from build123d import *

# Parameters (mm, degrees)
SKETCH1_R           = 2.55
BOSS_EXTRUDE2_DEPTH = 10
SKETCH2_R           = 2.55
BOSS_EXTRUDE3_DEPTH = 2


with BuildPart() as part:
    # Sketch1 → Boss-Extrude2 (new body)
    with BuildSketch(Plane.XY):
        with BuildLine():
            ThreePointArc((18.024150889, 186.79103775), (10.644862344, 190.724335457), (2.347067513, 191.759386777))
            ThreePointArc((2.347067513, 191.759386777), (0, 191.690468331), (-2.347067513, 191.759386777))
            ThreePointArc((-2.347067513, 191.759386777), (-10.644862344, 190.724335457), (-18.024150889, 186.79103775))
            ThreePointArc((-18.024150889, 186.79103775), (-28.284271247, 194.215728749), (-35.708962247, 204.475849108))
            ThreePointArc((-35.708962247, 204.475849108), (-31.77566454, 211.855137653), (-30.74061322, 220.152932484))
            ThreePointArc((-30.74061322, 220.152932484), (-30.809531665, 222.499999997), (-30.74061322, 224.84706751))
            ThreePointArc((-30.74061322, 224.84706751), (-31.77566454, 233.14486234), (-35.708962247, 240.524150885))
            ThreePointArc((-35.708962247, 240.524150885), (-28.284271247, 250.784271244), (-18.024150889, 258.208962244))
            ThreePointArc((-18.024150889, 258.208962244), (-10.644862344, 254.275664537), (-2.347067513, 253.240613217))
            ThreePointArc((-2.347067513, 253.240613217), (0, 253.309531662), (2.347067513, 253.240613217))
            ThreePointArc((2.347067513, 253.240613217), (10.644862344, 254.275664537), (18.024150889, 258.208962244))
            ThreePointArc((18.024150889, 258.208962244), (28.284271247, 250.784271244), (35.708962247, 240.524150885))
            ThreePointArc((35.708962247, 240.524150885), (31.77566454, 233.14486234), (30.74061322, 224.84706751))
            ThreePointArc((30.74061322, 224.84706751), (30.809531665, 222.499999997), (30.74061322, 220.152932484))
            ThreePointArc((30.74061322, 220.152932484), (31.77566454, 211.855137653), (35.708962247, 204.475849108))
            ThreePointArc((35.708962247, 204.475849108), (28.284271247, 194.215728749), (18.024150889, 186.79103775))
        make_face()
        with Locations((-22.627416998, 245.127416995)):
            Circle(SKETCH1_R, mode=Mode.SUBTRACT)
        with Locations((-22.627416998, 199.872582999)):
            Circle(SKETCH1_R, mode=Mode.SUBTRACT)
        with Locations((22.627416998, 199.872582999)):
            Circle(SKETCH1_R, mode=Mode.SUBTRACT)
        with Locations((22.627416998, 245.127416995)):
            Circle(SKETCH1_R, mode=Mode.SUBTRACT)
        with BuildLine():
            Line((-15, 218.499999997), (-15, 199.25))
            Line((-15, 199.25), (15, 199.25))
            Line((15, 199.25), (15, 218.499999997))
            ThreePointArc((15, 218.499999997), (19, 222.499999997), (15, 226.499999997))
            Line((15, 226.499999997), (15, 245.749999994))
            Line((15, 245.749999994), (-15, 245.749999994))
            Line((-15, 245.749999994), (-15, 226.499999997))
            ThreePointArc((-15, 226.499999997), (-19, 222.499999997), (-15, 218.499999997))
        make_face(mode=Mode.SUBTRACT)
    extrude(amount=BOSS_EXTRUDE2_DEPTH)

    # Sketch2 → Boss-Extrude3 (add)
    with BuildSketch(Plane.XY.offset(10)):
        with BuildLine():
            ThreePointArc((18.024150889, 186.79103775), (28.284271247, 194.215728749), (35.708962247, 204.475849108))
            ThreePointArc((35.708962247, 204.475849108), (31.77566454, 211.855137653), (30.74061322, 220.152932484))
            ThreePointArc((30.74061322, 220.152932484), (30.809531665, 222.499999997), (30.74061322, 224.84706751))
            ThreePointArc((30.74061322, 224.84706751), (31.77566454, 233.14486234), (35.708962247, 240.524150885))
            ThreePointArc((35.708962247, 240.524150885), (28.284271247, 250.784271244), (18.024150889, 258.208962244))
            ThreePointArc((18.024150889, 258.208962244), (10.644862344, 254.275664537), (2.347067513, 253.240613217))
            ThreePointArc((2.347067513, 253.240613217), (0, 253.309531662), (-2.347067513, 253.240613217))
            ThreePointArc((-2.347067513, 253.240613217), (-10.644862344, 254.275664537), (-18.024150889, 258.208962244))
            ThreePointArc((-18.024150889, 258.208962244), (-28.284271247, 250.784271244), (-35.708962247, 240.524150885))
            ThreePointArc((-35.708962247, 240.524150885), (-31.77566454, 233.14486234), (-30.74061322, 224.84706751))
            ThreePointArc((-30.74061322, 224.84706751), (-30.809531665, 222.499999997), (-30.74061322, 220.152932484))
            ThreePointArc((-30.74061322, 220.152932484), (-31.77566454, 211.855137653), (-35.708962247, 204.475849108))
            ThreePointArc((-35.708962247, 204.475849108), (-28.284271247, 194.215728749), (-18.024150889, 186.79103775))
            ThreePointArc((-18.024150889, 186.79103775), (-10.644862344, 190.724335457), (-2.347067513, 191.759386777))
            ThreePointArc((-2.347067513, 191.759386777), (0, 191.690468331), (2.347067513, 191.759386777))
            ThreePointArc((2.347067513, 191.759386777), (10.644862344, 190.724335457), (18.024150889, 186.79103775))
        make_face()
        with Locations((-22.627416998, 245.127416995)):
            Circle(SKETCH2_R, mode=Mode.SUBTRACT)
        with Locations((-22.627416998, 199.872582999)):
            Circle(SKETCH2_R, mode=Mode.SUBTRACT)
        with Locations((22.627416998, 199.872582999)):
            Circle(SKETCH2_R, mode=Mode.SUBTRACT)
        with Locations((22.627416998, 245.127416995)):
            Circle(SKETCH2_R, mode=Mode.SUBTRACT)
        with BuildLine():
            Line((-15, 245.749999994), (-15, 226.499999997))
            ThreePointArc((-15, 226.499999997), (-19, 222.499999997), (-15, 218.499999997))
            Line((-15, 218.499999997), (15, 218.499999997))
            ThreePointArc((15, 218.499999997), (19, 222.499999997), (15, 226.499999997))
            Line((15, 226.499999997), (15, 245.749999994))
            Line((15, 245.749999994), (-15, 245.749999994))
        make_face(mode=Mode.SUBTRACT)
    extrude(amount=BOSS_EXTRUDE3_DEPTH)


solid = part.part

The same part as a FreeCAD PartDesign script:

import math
import FreeCAD as App
import Part
import Sketcher

V = App.Vector

doc = App.newDocument("Part")
body = doc.addObject("PartDesign::Body", "Body")

# Sketch on XY plane
sketch1 = doc.addObject("Sketcher::SketchObject", "Sketch")
body.addObject(sketch1)
sketch1.AttachmentSupport = (doc.XY_Plane, [""])
sketch1.MapMode = "FlatFace"
sketch1.addGeometry(Part.ArcOfCircle(Part.Circle(V(3.696585, 168.799804, 0), V(0, 0, 1), 22.999209), math.radians(51.467456), math.radians(93.363859)), False)
sketch1.addGeometry(Part.ArcOfCircle(Part.Circle(V(0, 222.5, 0), V(0, 0, 1), 40), math.radians(-63.217572), math.radians(-26.782428)), False)
sketch1.addGeometry(Part.ArcOfCircle(Part.Circle(V(53.700196, 218.803415, 0), V(0, 0, 1), 22.999209), math.radians(176.636141), math.radians(218.532544)), False)
sketch1.addGeometry(Part.ArcOfCircle(Part.Circle(V(-9.190469, 222.5, 0), V(0, 0, 1), 40), math.radians(-3.363859), math.radians(3.363859)), False)
sketch1.addGeometry(Part.ArcOfCircle(Part.Circle(V(53.700196, 226.196585, 0), V(0, 0, 1), 22.999209), math.radians(141.467456), math.radians(183.363859)), False)
sketch1.addGeometry(Part.ArcOfCircle(Part.Circle(V(0, 222.5, 0), V(0, 0, 1), 40), math.radians(26.782428), math.radians(63.217572)), False)
sketch1.addGeometry(Part.ArcOfCircle(Part.Circle(V(3.696585, 276.200196, 0), V(0, 0, 1), 22.999209), math.radians(-93.363859), math.radians(-51.467456)), False)
sketch1.addGeometry(Part.ArcOfCircle(Part.Circle(V(0, 213.309531, 0), V(0, 0, 1), 40), math.radians(86.636141), math.radians(93.363859)), False)
sketch1.addGeometry(Part.ArcOfCircle(Part.Circle(V(-3.696585, 276.200196, 0), V(0, 0, 1), 22.999209), math.radians(-128.532544), math.radians(-86.636141)), False)
sketch1.addGeometry(Part.ArcOfCircle(Part.Circle(V(0, 222.5, 0), V(0, 0, 1), 40), math.radians(116.782428), math.radians(153.217572)), False)
sketch1.addGeometry(Part.ArcOfCircle(Part.Circle(V(-53.700196, 226.196585, 0), V(0, 0, 1), 22.999209), math.radians(-3.363859), math.radians(38.532544)), False)
sketch1.addGeometry(Part.ArcOfCircle(Part.Circle(V(9.190469, 222.5, 0), V(0, 0, 1), 40), math.radians(176.636141), math.radians(183.363859)), False)
sketch1.addGeometry(Part.ArcOfCircle(Part.Circle(V(-53.700196, 218.803415, 0), V(0, 0, 1), 22.999209), math.radians(-38.532544), math.radians(3.363859)), False)
sketch1.addGeometry(Part.ArcOfCircle(Part.Circle(V(0, 222.5, 0), V(0, 0, 1), 40), math.radians(-153.217572), math.radians(-116.782428)), False)
sketch1.addGeometry(Part.ArcOfCircle(Part.Circle(V(-3.696585, 168.799804, 0), V(0, 0, 1), 22.999209), math.radians(86.636141), math.radians(128.532544)), False)
sketch1.addGeometry(Part.ArcOfCircle(Part.Circle(V(0, 231.690468, 0), V(0, 0, 1), 40), math.radians(-93.363859), math.radians(-86.636141)), False)
sketch1.addGeometry(Part.Circle(V(22.627417, 199.872583, 0), V(0, 0, 1), 2.55), False)
sketch1.addGeometry(Part.Circle(V(-22.627417, 199.872583, 0), V(0, 0, 1), 2.55), False)
sketch1.addGeometry(Part.Circle(V(22.627417, 245.127417, 0), V(0, 0, 1), 2.55), False)
sketch1.addGeometry(Part.ArcOfCircle(Part.Circle(V(-15, 222.5, 0), V(0, 0, 1), 4), math.radians(90), math.radians(270)), False)
sketch1.addGeometry(Part.LineSegment(V(-15, 226.5, 0), V(-15, 245.75, 0)), False)
sketch1.addGeometry(Part.LineSegment(V(-15, 245.75, 0), V(15, 245.75, 0)), False)
sketch1.addGeometry(Part.LineSegment(V(15, 245.75, 0), V(15, 226.5, 0)), False)
sketch1.addGeometry(Part.ArcOfCircle(Part.Circle(V(15, 222.5, 0), V(0, 0, 1), 4), math.radians(-90), math.radians(90)), False)
sketch1.addGeometry(Part.LineSegment(V(15, 218.5, 0), V(15, 199.25, 0)), False)
sketch1.addGeometry(Part.LineSegment(V(15, 199.25, 0), V(-15, 199.25, 0)), False)
sketch1.addGeometry(Part.LineSegment(V(-15, 199.25, 0), V(-15, 218.5, 0)), False)
sketch1.addGeometry(Part.Circle(V(-22.627417, 245.127417, 0), V(0, 0, 1), 2.55), False)
sketch1.addConstraint(Sketcher.Constraint("Coincident", 0, 1, 1, 1))
sketch1.addConstraint(Sketcher.Constraint("Coincident", 1, 2, 2, 2))
sketch1.addConstraint(Sketcher.Constraint("Tangent", 2, 1, 3, 1))
sketch1.addConstraint(Sketcher.Constraint("Tangent", 3, 2, 4, 2))
sketch1.addConstraint(Sketcher.Constraint("Coincident", 4, 1, 5, 1))
sketch1.addConstraint(Sketcher.Constraint("Coincident", 5, 2, 6, 2))
sketch1.addConstraint(Sketcher.Constraint("Tangent", 6, 1, 7, 1))
sketch1.addConstraint(Sketcher.Constraint("Tangent", 7, 2, 8, 2))
sketch1.addConstraint(Sketcher.Constraint("Coincident", 8, 1, 9, 1))
sketch1.addConstraint(Sketcher.Constraint("Coincident", 9, 2, 10, 2))
sketch1.addConstraint(Sketcher.Constraint("Tangent", 10, 1, 11, 1))
sketch1.addConstraint(Sketcher.Constraint("Tangent", 11, 2, 12, 2))
sketch1.addConstraint(Sketcher.Constraint("Coincident", 12, 1, 13, 1))
sketch1.addConstraint(Sketcher.Constraint("Coincident", 13, 2, 14, 2))
sketch1.addConstraint(Sketcher.Constraint("Tangent", 14, 1, 15, 1))
sketch1.addConstraint(Sketcher.Constraint("Tangent", 15, 2, 0, 2))
sketch1.addConstraint(Sketcher.Constraint("Coincident", 19, 1, 20, 1))
sketch1.addConstraint(Sketcher.Constraint("Coincident", 20, 2, 21, 1))
sketch1.addConstraint(Sketcher.Constraint("Coincident", 21, 2, 22, 1))
sketch1.addConstraint(Sketcher.Constraint("Coincident", 22, 2, 23, 2))
sketch1.addConstraint(Sketcher.Constraint("Coincident", 23, 1, 24, 1))
sketch1.addConstraint(Sketcher.Constraint("Coincident", 24, 2, 25, 1))
sketch1.addConstraint(Sketcher.Constraint("Coincident", 25, 2, 26, 1))
sketch1.addConstraint(Sketcher.Constraint("Coincident", 26, 2, 19, 2))
sketch1.addConstraint(Sketcher.Constraint("Vertical", 20))
sketch1.addConstraint(Sketcher.Constraint("Horizontal", 21))
sketch1.addConstraint(Sketcher.Constraint("Vertical", 22))
sketch1.addConstraint(Sketcher.Constraint("Vertical", 24))
sketch1.addConstraint(Sketcher.Constraint("Horizontal", 25))
sketch1.addConstraint(Sketcher.Constraint("Vertical", 26))
sketch1.addConstraint(Sketcher.Constraint("Coincident", 5, 3, 1, 3))
sketch1.addConstraint(Sketcher.Constraint("Coincident", 9, 3, 1, 3))
sketch1.addConstraint(Sketcher.Constraint("Coincident", 13, 3, 1, 3))
sketch1.addConstraint(Sketcher.Constraint("Equal", 0, 2))
sketch1.addConstraint(Sketcher.Constraint("Equal", 1, 3))
sketch1.addConstraint(Sketcher.Constraint("Equal", 2, 4))
sketch1.addConstraint(Sketcher.Constraint("Equal", 3, 5))
sketch1.addConstraint(Sketcher.Constraint("Equal", 4, 6))
sketch1.addConstraint(Sketcher.Constraint("Equal", 5, 7))
sketch1.addConstraint(Sketcher.Constraint("Equal", 6, 8))
sketch1.addConstraint(Sketcher.Constraint("Equal", 7, 9))
sketch1.addConstraint(Sketcher.Constraint("Equal", 8, 10))
sketch1.addConstraint(Sketcher.Constraint("Equal", 9, 11))
sketch1.addConstraint(Sketcher.Constraint("Equal", 10, 12))
sketch1.addConstraint(Sketcher.Constraint("Equal", 11, 13))
sketch1.addConstraint(Sketcher.Constraint("Equal", 12, 14))
sketch1.addConstraint(Sketcher.Constraint("Equal", 13, 15))
sketch1.addConstraint(Sketcher.Constraint("Equal", 16, 17))
sketch1.addConstraint(Sketcher.Constraint("Equal", 17, 18))
sketch1.addConstraint(Sketcher.Constraint("Equal", 19, 23))
sketch1.addConstraint(Sketcher.Constraint("Equal", 18, 27))
sketch1.addConstraint(Sketcher.Constraint("Symmetric", 6, 3, 8, 3, -2))
sketch1.addConstraint(Sketcher.Constraint("Symmetric", 4, 3, 10, 3, -2))
sketch1.addConstraint(Sketcher.Constraint("Symmetric", 2, 3, 12, 3, -2))
sketch1.addConstraint(Sketcher.Constraint("Symmetric", 0, 3, 14, 3, -2))
sketch1.addConstraint(Sketcher.Constraint("Symmetric", 16, 3, 17, 3, -2))
sketch1.addConstraint(Sketcher.Constraint("Symmetric", 19, 3, 23, 3, -2))
sketch1.addConstraint(Sketcher.Constraint("Symmetric", 18, 3, 27, 3, -2))
sketch1.addConstraint(Sketcher.Constraint("PointOnObject", 1, 3, -2))
sketch1.addConstraint(Sketcher.Constraint("Horizontal", 1, 3, 3, 3))
sketch1.addConstraint(Sketcher.Constraint("Horizontal", 13, 3, 19, 3))
sketch1.addConstraint(Sketcher.Constraint("Vertical", 2, 3, 4, 3))
sketch1.addConstraint(Sketcher.Constraint("Vertical", 0, 3, 6, 3))
sketch1.addConstraint(Sketcher.Constraint("Vertical", 16, 3, 18, 3))
sketch1.addConstraint(Sketcher.Constraint("Vertical", 0, 1, 5, 2))
sketch1.addConstraint(Sketcher.Constraint("Vertical", 23, 3, 21, 2))
sketch1.addConstraint(Sketcher.Constraint("Vertical", 22, 2, 23, 1))
sketch1.addConstraint(Sketcher.Constraint("Vertical", 20, 2, 25, 2))
sketch1.addConstraint(Sketcher.Constraint("Equal", 22, 24))
sketch1.addConstraint(Sketcher.Constraint("Radius", 1, 40.0))
sketch1.addConstraint(Sketcher.Constraint("Radius", 19, 4.0))
sketch1.addConstraint(Sketcher.Constraint("Diameter", 16, 5.1))
sketch1.addConstraint(Sketcher.Constraint("DistanceX", 21, 1, 21, 2, 30.0))
sketch1.addConstraint(Sketcher.Constraint("DistanceX", 19, 3, -1, 1, 15.0))
sketch1.addConstraint(Sketcher.Constraint("DistanceY", 20, 1, 20, 2, 19.25))
sketch1.addConstraint(Sketcher.Constraint("DistanceY", -1, 1, 1, 3, 222.5))
sketch1.addConstraint(Sketcher.Constraint("Radius", 0, 22.999209))
sketch1.addConstraint(Sketcher.Constraint("DistanceX", 3, 3, -1, 1, 9.190469))
sketch1.addConstraint(Sketcher.Constraint("DistanceY", -1, 1, 7, 3, 213.309531))
sketch1.addConstraint(Sketcher.Constraint("DistanceX", -1, 1, 0, 1, 18.024151))
sketch1.addConstraint(Sketcher.Constraint("DistanceY", -1, 1, 1, 2, 204.475849))
sketch1.addConstraint(Sketcher.Constraint("DistanceX", 11, 3, 16, 3, 13.436948))
sketch1.addConstraint(Sketcher.Constraint("DistanceY", 16, 3, 7, 3, 13.436948))
sketch1.addConstraint(Sketcher.Constraint("DistanceY", 15, 3, 18, 3, 13.436949))
pad1 = doc.addObject("PartDesign::Pad", "Pad")
body.addObject(pad1)
pad1.Profile = sketch1
pad1.Length = 10

# Sketch on XY plane
sketch2 = doc.addObject("Sketcher::SketchObject", "Sketch001")
body.addObject(sketch2)
sketch2.AttachmentSupport = (doc.XY_Plane, [""])
sketch2.MapMode = "FlatFace"
sketch2.AttachmentOffset = App.Placement(V(0, 0, 10), App.Rotation())
sketch2.addGeometry(Part.ArcOfCircle(Part.Circle(V(0, 222.5, 0), V(0, 0, 1), 40), math.radians(-63.217572), math.radians(-26.782428)), False)
sketch2.addGeometry(Part.ArcOfCircle(Part.Circle(V(53.700196, 218.803415, 0), V(0, 0, 1), 22.999209), math.radians(176.636141), math.radians(218.532544)), False)
sketch2.addGeometry(Part.ArcOfCircle(Part.Circle(V(-9.190469, 222.5, 0), V(0, 0, 1), 40), math.radians(-3.363859), math.radians(3.363859)), False)
sketch2.addGeometry(Part.ArcOfCircle(Part.Circle(V(53.700196, 226.196585, 0), V(0, 0, 1), 22.999209), math.radians(141.467456), math.radians(183.363859)), False)
sketch2.addGeometry(Part.ArcOfCircle(Part.Circle(V(0, 222.5, 0), V(0, 0, 1), 40), math.radians(26.782428), math.radians(63.217572)), False)
sketch2.addGeometry(Part.ArcOfCircle(Part.Circle(V(3.696585, 276.200196, 0), V(0, 0, 1), 22.999209), math.radians(-93.363859), math.radians(-51.467456)), False)
sketch2.addGeometry(Part.ArcOfCircle(Part.Circle(V(0, 213.309531, 0), V(0, 0, 1), 40), math.radians(86.636141), math.radians(93.363859)), False)
sketch2.addGeometry(Part.ArcOfCircle(Part.Circle(V(-3.696585, 276.200196, 0), V(0, 0, 1), 22.999209), math.radians(-128.532544), math.radians(-86.636141)), False)
sketch2.addGeometry(Part.ArcOfCircle(Part.Circle(V(0, 222.5, 0), V(0, 0, 1), 40), math.radians(116.782428), math.radians(153.217572)), False)
sketch2.addGeometry(Part.ArcOfCircle(Part.Circle(V(-53.700196, 226.196585, 0), V(0, 0, 1), 22.999209), math.radians(-3.363859), math.radians(38.532544)), False)
sketch2.addGeometry(Part.ArcOfCircle(Part.Circle(V(9.190469, 222.5, 0), V(0, 0, 1), 40), math.radians(176.636141), math.radians(183.363859)), False)
sketch2.addGeometry(Part.ArcOfCircle(Part.Circle(V(-53.700196, 218.803415, 0), V(0, 0, 1), 22.999209), math.radians(-38.532544), math.radians(3.363859)), False)
sketch2.addGeometry(Part.ArcOfCircle(Part.Circle(V(0, 222.5, 0), V(0, 0, 1), 40), math.radians(-153.217572), math.radians(-116.782428)), False)
sketch2.addGeometry(Part.ArcOfCircle(Part.Circle(V(-3.696585, 168.799804, 0), V(0, 0, 1), 22.999209), math.radians(86.636141), math.radians(128.532544)), False)
sketch2.addGeometry(Part.ArcOfCircle(Part.Circle(V(0, 231.690468, 0), V(0, 0, 1), 40), math.radians(-93.363859), math.radians(-86.636141)), False)
sketch2.addGeometry(Part.ArcOfCircle(Part.Circle(V(3.696585, 168.799804, 0), V(0, 0, 1), 22.999209), math.radians(51.467456), math.radians(93.363859)), False)
sketch2.addGeometry(Part.Circle(V(-22.627417, 199.872583, 0), V(0, 0, 1), 2.55), False)
sketch2.addGeometry(Part.Circle(V(22.627417, 199.872583, 0), V(0, 0, 1), 2.55), False)
sketch2.addGeometry(Part.Circle(V(-22.627417, 245.127417, 0), V(0, 0, 1), 2.55), False)
sketch2.addGeometry(Part.LineSegment(V(-15, 226.5, 0), V(-15, 245.75, 0)), False)
sketch2.addGeometry(Part.LineSegment(V(-15, 245.75, 0), V(15, 245.75, 0)), False)
sketch2.addGeometry(Part.LineSegment(V(15, 245.75, 0), V(15, 226.5, 0)), False)
sketch2.addGeometry(Part.ArcOfCircle(Part.Circle(V(15, 222.5, 0), V(0, 0, 1), 4), math.radians(-90), math.radians(90)), False)
sketch2.addGeometry(Part.LineSegment(V(15, 218.5, 0), V(-15, 218.5, 0)), False)
sketch2.addGeometry(Part.ArcOfCircle(Part.Circle(V(-15, 222.5, 0), V(0, 0, 1), 4), math.radians(90), math.radians(270)), False)
sketch2.addGeometry(Part.Circle(V(22.627417, 245.127417, 0), V(0, 0, 1), 2.55), False)
sketch2.addConstraint(Sketcher.Constraint("Coincident", 0, 2, 1, 2))
sketch2.addConstraint(Sketcher.Constraint("Tangent", 1, 1, 2, 1))
sketch2.addConstraint(Sketcher.Constraint("Tangent", 2, 2, 3, 2))
sketch2.addConstraint(Sketcher.Constraint("Coincident", 3, 1, 4, 1))
sketch2.addConstraint(Sketcher.Constraint("Coincident", 4, 2, 5, 2))
sketch2.addConstraint(Sketcher.Constraint("Tangent", 5, 1, 6, 1))
sketch2.addConstraint(Sketcher.Constraint("Tangent", 6, 2, 7, 2))
sketch2.addConstraint(Sketcher.Constraint("Coincident", 7, 1, 8, 1))
sketch2.addConstraint(Sketcher.Constraint("Coincident", 8, 2, 9, 2))
sketch2.addConstraint(Sketcher.Constraint("Tangent", 9, 1, 10, 1))
sketch2.addConstraint(Sketcher.Constraint("Tangent", 10, 2, 11, 2))
sketch2.addConstraint(Sketcher.Constraint("Coincident", 11, 1, 12, 1))
sketch2.addConstraint(Sketcher.Constraint("Coincident", 12, 2, 13, 2))
sketch2.addConstraint(Sketcher.Constraint("Tangent", 13, 1, 14, 1))
sketch2.addConstraint(Sketcher.Constraint("Tangent", 14, 2, 15, 2))
sketch2.addConstraint(Sketcher.Constraint("Coincident", 15, 1, 0, 1))
sketch2.addConstraint(Sketcher.Constraint("Coincident", 19, 2, 20, 1))
sketch2.addConstraint(Sketcher.Constraint("Coincident", 20, 2, 21, 1))
sketch2.addConstraint(Sketcher.Constraint("Coincident", 21, 2, 22, 2))
sketch2.addConstraint(Sketcher.Constraint("Tangent", 22, 1, 23, 1))
sketch2.addConstraint(Sketcher.Constraint("Tangent", 23, 2, 24, 2))
sketch2.addConstraint(Sketcher.Constraint("Coincident", 24, 1, 19, 1))
sketch2.addConstraint(Sketcher.Constraint("Vertical", 19))
sketch2.addConstraint(Sketcher.Constraint("Horizontal", 20))
sketch2.addConstraint(Sketcher.Constraint("Vertical", 21))
sketch2.addConstraint(Sketcher.Constraint("Horizontal", 23))
sketch2.addConstraint(Sketcher.Constraint("Coincident", 4, 3, 0, 3))
sketch2.addConstraint(Sketcher.Constraint("Coincident", 8, 3, 0, 3))
sketch2.addConstraint(Sketcher.Constraint("Coincident", 12, 3, 0, 3))
sketch2.addConstraint(Sketcher.Constraint("Equal", 0, 2))
sketch2.addConstraint(Sketcher.Constraint("Equal", 1, 3))
sketch2.addConstraint(Sketcher.Constraint("Equal", 2, 4))
sketch2.addConstraint(Sketcher.Constraint("Equal", 3, 5))
sketch2.addConstraint(Sketcher.Constraint("Equal", 4, 6))
sketch2.addConstraint(Sketcher.Constraint("Equal", 5, 7))
sketch2.addConstraint(Sketcher.Constraint("Equal", 6, 8))
sketch2.addConstraint(Sketcher.Constraint("Equal", 7, 9))
sketch2.addConstraint(Sketcher.Constraint("Equal", 8, 10))
sketch2.addConstraint(Sketcher.Constraint("Equal", 9, 11))
sketch2.addConstraint(Sketcher.Constraint("Equal", 10, 12))
sketch2.addConstraint(Sketcher.Constraint("Equal", 11, 13))
sketch2.addConstraint(Sketcher.Constraint("Equal", 12, 14))
sketch2.addConstraint(Sketcher.Constraint("Equal", 13, 15))
sketch2.addConstraint(Sketcher.Constraint("Equal", 16, 17))
sketch2.addConstraint(Sketcher.Constraint("Equal", 17, 18))
sketch2.addConstraint(Sketcher.Constraint("Equal", 22, 24))
sketch2.addConstraint(Sketcher.Constraint("Equal", 18, 25))
sketch2.addConstraint(Sketcher.Constraint("Symmetric", 5, 3, 7, 3, -2))
sketch2.addConstraint(Sketcher.Constraint("Symmetric", 3, 3, 9, 3, -2))
sketch2.addConstraint(Sketcher.Constraint("Symmetric", 1, 3, 11, 3, -2))
sketch2.addConstraint(Sketcher.Constraint("Symmetric", 13, 3, 15, 3, -2))
sketch2.addConstraint(Sketcher.Constraint("Symmetric", 16, 3, 17, 3, -2))
sketch2.addConstraint(Sketcher.Constraint("Symmetric", 18, 3, 25, 3, -2))
sketch2.addConstraint(Sketcher.Constraint("PointOnObject", 0, 3, -2))
sketch2.addConstraint(Sketcher.Constraint("Horizontal", 0, 3, 2, 3))
sketch2.addConstraint(Sketcher.Constraint("Horizontal", 12, 3, 22, 3))
sketch2.addConstraint(Sketcher.Constraint("Vertical", 1, 3, 3, 3))
sketch2.addConstraint(Sketcher.Constraint("Vertical", 7, 3, 13, 3))
sketch2.addConstraint(Sketcher.Constraint("Vertical", 16, 3, 18, 3))
sketch2.addConstraint(Sketcher.Constraint("Vertical", 7, 1, 12, 2))
sketch2.addConstraint(Sketcher.Constraint("Vertical", 24, 3, 19, 2))
sketch2.addConstraint(Sketcher.Constraint("Vertical", 22, 3, 20, 2))
sketch2.addConstraint(Sketcher.Constraint("Radius", 0, 40.0))
sketch2.addConstraint(Sketcher.Constraint("Radius", 22, 4.0))
sketch2.addConstraint(Sketcher.Constraint("Diameter", 16, 5.1))
sketch2.addConstraint(Sketcher.Constraint("DistanceX", 20, 1, 20, 2, 30.0))
sketch2.addConstraint(Sketcher.Constraint("DistanceX", -1, 1, 22, 3, 15.0))
sketch2.addConstraint(Sketcher.Constraint("DistanceY", 19, 1, 19, 2, 19.25))
sketch2.addConstraint(Sketcher.Constraint("DistanceY", -1, 1, 0, 3, 222.5))
sketch2.addConstraint(Sketcher.Constraint("Radius", 1, 22.999209))
sketch2.addConstraint(Sketcher.Constraint("DistanceX", 2, 3, -1, 1, 9.190469))
sketch2.addConstraint(Sketcher.Constraint("DistanceY", -1, 1, 6, 3, 213.309531))
sketch2.addConstraint(Sketcher.Constraint("DistanceY", -1, 1, 0, 2, 204.475849))
sketch2.addConstraint(Sketcher.Constraint("DistanceX", -1, 1, 4, 2, 18.024151))
sketch2.addConstraint(Sketcher.Constraint("DistanceX", 16, 3, 2, 3, 13.436948))
sketch2.addConstraint(Sketcher.Constraint("DistanceY", 16, 3, 6, 3, 13.436948))
sketch2.addConstraint(Sketcher.Constraint("DistanceY", 14, 3, 18, 3, 13.436949))
pad2 = doc.addObject("PartDesign::Pad", "Pad001")
body.addObject(pad2)
pad2.Profile = sketch2
pad2.Length = 2

doc.recompute()
